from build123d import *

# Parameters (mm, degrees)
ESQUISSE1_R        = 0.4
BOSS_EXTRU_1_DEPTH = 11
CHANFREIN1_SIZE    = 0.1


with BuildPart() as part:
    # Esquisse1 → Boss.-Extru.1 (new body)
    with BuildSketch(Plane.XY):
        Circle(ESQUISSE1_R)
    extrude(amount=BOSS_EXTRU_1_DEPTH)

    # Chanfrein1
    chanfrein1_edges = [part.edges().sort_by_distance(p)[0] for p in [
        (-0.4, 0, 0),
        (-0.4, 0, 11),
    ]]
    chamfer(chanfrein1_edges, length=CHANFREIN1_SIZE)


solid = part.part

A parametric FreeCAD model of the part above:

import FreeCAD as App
import Part
import Sketcher

V = App.Vector


def edges_at(feature, points):
    """Names of the edges that pass closest to the given points."""
    edges = feature.Shape.Edges
    near = lambda p: min(range(len(edges)), key=lambda i: edges[i].distToShape(Part.Vertex(*p))[0])
    return sorted({f"Edge{near(p) + 1}" for p in points})

doc = App.newDocument("Part")
body = doc.addObject("PartDesign::Body", "Body")

sketch1 = body.newObject("Sketcher::SketchObject", "Sketch")
sketch1.AttachmentSupport = (doc.getObject("XY_Plane"), [""])
sketch1.MapMode = "FlatFace"
sketch1.addGeometry(Part.Circle(V(0, 0, 0), V(0, 0, 1), 0.4), False)
sketch1.addConstraint(Sketcher.Constraint("Coincident", 0, 3, -1, 1))
sketch1.addConstraint(Sketcher.Constraint("Diameter", 0, 0.8))
pad1 = body.newObject("PartDesign::Pad", "Pad")
pad1.Profile = sketch1
pad1.Length = 11
doc.recompute()

chamfer = body.newObject("PartDesign::Chamfer", "Chamfer")
chamfer.Base = (pad1, edges_at(pad1, [(-0.4, 0, 0), (-0.4, 0, 11)]))
chamfer.Size = 0.1

doc.recompute()
